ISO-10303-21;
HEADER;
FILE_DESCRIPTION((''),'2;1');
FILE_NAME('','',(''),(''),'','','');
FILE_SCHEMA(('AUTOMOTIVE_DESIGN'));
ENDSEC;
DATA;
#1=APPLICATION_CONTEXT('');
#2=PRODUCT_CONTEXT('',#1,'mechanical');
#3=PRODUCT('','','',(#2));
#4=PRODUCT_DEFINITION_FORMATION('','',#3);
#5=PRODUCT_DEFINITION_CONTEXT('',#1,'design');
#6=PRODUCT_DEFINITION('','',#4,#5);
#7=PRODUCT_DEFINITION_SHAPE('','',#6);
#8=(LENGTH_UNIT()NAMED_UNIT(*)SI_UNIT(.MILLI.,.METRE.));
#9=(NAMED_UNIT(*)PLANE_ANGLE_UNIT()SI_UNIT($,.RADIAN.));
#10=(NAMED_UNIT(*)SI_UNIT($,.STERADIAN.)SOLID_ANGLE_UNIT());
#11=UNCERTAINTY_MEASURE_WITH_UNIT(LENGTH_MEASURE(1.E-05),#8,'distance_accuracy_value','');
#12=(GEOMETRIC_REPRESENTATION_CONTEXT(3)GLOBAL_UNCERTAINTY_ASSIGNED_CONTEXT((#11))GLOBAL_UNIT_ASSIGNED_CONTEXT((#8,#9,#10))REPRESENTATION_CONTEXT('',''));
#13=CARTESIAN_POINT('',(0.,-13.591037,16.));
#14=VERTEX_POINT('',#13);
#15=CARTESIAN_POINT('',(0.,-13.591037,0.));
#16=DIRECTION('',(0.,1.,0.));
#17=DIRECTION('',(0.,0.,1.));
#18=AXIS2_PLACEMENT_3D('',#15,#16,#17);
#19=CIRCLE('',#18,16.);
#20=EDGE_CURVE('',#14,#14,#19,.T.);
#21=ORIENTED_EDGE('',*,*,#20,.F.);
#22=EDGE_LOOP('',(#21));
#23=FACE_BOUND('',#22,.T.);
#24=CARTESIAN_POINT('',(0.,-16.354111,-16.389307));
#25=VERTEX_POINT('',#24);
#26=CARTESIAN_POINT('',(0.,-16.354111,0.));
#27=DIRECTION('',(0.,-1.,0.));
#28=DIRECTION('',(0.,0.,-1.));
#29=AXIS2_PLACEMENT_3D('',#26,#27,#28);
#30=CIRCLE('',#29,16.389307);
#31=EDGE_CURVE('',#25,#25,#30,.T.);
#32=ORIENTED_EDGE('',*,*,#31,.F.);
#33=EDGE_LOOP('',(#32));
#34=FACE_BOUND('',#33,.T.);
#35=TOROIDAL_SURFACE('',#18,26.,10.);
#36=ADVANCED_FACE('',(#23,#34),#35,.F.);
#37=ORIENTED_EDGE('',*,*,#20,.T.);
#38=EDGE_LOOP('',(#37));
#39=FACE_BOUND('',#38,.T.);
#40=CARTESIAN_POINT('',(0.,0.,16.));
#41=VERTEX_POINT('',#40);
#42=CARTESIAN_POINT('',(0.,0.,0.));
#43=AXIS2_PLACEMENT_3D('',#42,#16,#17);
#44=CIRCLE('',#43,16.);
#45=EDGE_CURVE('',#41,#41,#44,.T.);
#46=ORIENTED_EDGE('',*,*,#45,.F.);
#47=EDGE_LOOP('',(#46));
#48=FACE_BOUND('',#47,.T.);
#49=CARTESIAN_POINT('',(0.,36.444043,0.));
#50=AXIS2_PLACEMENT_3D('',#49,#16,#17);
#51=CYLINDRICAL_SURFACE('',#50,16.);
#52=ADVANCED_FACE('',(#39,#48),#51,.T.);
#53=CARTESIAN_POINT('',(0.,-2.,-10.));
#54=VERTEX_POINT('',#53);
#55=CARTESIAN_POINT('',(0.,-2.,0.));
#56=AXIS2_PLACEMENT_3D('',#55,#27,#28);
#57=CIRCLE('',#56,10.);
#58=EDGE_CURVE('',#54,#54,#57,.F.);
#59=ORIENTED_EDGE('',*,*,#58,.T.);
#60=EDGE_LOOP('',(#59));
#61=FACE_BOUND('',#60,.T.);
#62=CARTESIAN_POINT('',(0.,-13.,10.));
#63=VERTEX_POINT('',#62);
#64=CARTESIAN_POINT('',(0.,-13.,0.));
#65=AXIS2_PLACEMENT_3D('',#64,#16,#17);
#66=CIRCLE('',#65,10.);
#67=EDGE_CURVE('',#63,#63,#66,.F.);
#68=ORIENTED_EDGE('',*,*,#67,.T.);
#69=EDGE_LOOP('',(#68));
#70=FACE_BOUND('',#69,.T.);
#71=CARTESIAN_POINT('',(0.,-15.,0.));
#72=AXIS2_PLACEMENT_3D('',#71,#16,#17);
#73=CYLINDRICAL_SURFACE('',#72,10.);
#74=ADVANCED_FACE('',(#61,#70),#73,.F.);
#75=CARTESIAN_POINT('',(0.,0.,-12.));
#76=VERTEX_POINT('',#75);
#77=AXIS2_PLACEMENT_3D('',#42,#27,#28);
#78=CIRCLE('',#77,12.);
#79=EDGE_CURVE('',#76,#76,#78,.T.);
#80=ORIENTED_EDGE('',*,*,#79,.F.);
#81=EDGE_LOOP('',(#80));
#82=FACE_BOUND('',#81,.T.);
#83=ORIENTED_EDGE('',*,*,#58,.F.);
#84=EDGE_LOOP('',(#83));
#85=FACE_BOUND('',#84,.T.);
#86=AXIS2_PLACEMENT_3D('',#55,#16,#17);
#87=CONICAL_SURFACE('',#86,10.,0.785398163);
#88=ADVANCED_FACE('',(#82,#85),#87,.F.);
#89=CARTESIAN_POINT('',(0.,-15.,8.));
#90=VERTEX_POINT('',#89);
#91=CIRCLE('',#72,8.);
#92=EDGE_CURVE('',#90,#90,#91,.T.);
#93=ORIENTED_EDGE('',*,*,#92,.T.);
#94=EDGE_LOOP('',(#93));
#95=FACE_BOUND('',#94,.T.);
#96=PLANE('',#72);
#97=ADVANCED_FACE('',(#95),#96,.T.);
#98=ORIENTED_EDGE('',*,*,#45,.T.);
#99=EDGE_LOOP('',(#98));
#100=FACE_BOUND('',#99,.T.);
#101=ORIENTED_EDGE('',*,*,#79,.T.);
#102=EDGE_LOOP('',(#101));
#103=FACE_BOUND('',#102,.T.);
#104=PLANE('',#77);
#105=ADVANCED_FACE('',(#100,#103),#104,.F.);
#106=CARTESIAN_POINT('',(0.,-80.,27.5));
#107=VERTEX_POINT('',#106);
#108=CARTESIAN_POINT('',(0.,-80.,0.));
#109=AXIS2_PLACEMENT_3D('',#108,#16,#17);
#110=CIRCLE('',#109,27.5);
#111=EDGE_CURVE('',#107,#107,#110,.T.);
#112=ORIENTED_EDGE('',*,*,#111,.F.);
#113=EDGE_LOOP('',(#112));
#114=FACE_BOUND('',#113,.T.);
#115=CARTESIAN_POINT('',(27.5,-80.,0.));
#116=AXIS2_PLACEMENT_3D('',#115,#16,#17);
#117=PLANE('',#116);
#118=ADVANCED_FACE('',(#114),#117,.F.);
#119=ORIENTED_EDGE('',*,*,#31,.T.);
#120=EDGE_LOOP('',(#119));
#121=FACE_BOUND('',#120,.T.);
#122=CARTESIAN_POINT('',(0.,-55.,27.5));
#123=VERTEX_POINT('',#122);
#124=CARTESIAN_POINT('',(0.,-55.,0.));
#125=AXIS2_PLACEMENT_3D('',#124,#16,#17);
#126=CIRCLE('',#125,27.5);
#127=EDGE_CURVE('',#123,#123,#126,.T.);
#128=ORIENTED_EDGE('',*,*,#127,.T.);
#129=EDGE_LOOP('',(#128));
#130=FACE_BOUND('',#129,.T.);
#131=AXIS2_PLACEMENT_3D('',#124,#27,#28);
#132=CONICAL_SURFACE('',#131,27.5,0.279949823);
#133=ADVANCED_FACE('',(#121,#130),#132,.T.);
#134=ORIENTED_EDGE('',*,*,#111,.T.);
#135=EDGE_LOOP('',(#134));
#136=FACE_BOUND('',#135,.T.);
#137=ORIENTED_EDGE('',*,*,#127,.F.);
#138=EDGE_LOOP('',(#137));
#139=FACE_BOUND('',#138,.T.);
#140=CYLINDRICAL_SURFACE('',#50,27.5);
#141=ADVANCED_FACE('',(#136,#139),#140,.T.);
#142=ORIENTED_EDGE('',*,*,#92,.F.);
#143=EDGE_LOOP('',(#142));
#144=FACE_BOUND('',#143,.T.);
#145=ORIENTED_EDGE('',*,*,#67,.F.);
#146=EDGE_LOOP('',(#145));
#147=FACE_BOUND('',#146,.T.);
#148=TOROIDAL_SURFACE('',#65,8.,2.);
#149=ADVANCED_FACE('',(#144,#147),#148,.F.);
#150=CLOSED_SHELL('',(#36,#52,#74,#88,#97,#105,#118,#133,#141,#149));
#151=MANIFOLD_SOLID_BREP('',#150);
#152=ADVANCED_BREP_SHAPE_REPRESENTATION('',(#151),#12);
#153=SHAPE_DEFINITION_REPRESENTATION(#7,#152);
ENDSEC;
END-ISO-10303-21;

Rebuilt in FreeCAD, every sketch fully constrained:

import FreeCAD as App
import Part
import Sketcher

V = App.Vector


def edges_at(feature, points):
    """Names of the edges that pass closest to the given points."""
    edges = feature.Shape.Edges
    near = lambda p: min(range(len(edges)), key=lambda i: edges[i].distToShape(Part.Vertex(*p))[0])
    return sorted({f"Edge{near(p) + 1}" for p in points})


def add_polygon(sketch, points):
    """Adds a closed chain of lines whose ends are joined by coincident constraints."""
    first, n = sketch.GeometryCount, len(points)
    for a, b in zip(points, points[1:] + points[:1]):
        sketch.addGeometry(Part.LineSegment(App.Vector(*a, 0), App.Vector(*b, 0)), False)
    for i in range(n):
        sketch.addConstraint(Sketcher.Constraint("Coincident", first + i, 2, first + (i + 1) % n, 1))

doc = App.newDocument("Part")
body = doc.addObject("PartDesign::Body", "Body")

sketch1 = doc.addObject("Sketcher::SketchObject", "Sketch")
body.addObject(sketch1)
sketch1.AttachmentSupport = (doc.XY_Plane, [""])
sketch1.MapMode = "FlatFace"
add_polygon(sketch1, [(16, 0), (0, 0), (0, -80), (27.5, -80), (27.5, -55), (16, -15)])
sketch1.addConstraint([
    Sketcher.Constraint("Horizontal", 0),
    Sketcher.Constraint("Vertical", 1),
    Sketcher.Constraint("Horizontal", 2),
    Sketcher.Constraint("Vertical", 3),
    Sketcher.Constraint("Vertical", 5),
    Sketcher.Constraint("Coincident", 0, 2, -1, 1),
    Sketcher.Constraint("DistanceX", 0, 2, 0, 1, 16.0),
    Sketcher.Constraint("DistanceY", 1, 2, 1, 1, 80.0),
    Sketcher.Constraint("DistanceY", 3, 1, 3, 2, 25.0),
    Sketcher.Constraint("DistanceY", 5, 1, 5, 2, 15.0),
    Sketcher.Constraint("DistanceX", 2, 1, 2, 2, 27.5),
])
revolution = doc.addObject("PartDesign::Revolution", "Revolution")
body.addObject(revolution)
revolution.Profile = sketch1
revolution.ReferenceAxis = (sketch1, ["V_Axis"])
revolution.Angle = 360

sketch2 = doc.addObject("Sketcher::SketchObject", "Sketch001")
body.addObject(sketch2)
sketch2.AttachmentSupport = (doc.XZ_Plane, [""])
sketch2.MapMode = "FlatFace"
sketch2.addGeometry(Part.Circle(V(0, 0, 0), V(0, 0, 1), 10), False)
sketch2.addConstraint([
    Sketcher.Constraint("Coincident", 0, 3, -1, 1),
    Sketcher.Constraint("Diameter", 0, 20.0),
])
pocket1 = doc.addObject("PartDesign::Pocket", "Pocket")
body.addObject(pocket1)
pocket1.Profile = sketch2
pocket1.Length = 15
pocket1.Reversed = True
doc.recompute()

chamfer = doc.addObject("PartDesign::Chamfer", "Chamfer")
body.addObject(chamfer)
chamfer.Base = (pocket1, edges_at(pocket1, [(0, 0, -10)]))
chamfer.Size = 2
doc.recompute()

fillet = doc.addObject("PartDesign::Fillet", "Fillet")
body.addObject(fillet)
fillet.Base = (chamfer, edges_at(chamfer, [(0, -15, -10)]))
fillet.Radius = 2
doc.recompute()

fillet2 = doc.addObject("PartDesign::Fillet", "Fillet001")
body.addObject(fillet2)
fillet2.Base = (fillet, edges_at(fillet, [(0, -15, -16)]))
fillet2.Radius = 10

doc.recompute()
